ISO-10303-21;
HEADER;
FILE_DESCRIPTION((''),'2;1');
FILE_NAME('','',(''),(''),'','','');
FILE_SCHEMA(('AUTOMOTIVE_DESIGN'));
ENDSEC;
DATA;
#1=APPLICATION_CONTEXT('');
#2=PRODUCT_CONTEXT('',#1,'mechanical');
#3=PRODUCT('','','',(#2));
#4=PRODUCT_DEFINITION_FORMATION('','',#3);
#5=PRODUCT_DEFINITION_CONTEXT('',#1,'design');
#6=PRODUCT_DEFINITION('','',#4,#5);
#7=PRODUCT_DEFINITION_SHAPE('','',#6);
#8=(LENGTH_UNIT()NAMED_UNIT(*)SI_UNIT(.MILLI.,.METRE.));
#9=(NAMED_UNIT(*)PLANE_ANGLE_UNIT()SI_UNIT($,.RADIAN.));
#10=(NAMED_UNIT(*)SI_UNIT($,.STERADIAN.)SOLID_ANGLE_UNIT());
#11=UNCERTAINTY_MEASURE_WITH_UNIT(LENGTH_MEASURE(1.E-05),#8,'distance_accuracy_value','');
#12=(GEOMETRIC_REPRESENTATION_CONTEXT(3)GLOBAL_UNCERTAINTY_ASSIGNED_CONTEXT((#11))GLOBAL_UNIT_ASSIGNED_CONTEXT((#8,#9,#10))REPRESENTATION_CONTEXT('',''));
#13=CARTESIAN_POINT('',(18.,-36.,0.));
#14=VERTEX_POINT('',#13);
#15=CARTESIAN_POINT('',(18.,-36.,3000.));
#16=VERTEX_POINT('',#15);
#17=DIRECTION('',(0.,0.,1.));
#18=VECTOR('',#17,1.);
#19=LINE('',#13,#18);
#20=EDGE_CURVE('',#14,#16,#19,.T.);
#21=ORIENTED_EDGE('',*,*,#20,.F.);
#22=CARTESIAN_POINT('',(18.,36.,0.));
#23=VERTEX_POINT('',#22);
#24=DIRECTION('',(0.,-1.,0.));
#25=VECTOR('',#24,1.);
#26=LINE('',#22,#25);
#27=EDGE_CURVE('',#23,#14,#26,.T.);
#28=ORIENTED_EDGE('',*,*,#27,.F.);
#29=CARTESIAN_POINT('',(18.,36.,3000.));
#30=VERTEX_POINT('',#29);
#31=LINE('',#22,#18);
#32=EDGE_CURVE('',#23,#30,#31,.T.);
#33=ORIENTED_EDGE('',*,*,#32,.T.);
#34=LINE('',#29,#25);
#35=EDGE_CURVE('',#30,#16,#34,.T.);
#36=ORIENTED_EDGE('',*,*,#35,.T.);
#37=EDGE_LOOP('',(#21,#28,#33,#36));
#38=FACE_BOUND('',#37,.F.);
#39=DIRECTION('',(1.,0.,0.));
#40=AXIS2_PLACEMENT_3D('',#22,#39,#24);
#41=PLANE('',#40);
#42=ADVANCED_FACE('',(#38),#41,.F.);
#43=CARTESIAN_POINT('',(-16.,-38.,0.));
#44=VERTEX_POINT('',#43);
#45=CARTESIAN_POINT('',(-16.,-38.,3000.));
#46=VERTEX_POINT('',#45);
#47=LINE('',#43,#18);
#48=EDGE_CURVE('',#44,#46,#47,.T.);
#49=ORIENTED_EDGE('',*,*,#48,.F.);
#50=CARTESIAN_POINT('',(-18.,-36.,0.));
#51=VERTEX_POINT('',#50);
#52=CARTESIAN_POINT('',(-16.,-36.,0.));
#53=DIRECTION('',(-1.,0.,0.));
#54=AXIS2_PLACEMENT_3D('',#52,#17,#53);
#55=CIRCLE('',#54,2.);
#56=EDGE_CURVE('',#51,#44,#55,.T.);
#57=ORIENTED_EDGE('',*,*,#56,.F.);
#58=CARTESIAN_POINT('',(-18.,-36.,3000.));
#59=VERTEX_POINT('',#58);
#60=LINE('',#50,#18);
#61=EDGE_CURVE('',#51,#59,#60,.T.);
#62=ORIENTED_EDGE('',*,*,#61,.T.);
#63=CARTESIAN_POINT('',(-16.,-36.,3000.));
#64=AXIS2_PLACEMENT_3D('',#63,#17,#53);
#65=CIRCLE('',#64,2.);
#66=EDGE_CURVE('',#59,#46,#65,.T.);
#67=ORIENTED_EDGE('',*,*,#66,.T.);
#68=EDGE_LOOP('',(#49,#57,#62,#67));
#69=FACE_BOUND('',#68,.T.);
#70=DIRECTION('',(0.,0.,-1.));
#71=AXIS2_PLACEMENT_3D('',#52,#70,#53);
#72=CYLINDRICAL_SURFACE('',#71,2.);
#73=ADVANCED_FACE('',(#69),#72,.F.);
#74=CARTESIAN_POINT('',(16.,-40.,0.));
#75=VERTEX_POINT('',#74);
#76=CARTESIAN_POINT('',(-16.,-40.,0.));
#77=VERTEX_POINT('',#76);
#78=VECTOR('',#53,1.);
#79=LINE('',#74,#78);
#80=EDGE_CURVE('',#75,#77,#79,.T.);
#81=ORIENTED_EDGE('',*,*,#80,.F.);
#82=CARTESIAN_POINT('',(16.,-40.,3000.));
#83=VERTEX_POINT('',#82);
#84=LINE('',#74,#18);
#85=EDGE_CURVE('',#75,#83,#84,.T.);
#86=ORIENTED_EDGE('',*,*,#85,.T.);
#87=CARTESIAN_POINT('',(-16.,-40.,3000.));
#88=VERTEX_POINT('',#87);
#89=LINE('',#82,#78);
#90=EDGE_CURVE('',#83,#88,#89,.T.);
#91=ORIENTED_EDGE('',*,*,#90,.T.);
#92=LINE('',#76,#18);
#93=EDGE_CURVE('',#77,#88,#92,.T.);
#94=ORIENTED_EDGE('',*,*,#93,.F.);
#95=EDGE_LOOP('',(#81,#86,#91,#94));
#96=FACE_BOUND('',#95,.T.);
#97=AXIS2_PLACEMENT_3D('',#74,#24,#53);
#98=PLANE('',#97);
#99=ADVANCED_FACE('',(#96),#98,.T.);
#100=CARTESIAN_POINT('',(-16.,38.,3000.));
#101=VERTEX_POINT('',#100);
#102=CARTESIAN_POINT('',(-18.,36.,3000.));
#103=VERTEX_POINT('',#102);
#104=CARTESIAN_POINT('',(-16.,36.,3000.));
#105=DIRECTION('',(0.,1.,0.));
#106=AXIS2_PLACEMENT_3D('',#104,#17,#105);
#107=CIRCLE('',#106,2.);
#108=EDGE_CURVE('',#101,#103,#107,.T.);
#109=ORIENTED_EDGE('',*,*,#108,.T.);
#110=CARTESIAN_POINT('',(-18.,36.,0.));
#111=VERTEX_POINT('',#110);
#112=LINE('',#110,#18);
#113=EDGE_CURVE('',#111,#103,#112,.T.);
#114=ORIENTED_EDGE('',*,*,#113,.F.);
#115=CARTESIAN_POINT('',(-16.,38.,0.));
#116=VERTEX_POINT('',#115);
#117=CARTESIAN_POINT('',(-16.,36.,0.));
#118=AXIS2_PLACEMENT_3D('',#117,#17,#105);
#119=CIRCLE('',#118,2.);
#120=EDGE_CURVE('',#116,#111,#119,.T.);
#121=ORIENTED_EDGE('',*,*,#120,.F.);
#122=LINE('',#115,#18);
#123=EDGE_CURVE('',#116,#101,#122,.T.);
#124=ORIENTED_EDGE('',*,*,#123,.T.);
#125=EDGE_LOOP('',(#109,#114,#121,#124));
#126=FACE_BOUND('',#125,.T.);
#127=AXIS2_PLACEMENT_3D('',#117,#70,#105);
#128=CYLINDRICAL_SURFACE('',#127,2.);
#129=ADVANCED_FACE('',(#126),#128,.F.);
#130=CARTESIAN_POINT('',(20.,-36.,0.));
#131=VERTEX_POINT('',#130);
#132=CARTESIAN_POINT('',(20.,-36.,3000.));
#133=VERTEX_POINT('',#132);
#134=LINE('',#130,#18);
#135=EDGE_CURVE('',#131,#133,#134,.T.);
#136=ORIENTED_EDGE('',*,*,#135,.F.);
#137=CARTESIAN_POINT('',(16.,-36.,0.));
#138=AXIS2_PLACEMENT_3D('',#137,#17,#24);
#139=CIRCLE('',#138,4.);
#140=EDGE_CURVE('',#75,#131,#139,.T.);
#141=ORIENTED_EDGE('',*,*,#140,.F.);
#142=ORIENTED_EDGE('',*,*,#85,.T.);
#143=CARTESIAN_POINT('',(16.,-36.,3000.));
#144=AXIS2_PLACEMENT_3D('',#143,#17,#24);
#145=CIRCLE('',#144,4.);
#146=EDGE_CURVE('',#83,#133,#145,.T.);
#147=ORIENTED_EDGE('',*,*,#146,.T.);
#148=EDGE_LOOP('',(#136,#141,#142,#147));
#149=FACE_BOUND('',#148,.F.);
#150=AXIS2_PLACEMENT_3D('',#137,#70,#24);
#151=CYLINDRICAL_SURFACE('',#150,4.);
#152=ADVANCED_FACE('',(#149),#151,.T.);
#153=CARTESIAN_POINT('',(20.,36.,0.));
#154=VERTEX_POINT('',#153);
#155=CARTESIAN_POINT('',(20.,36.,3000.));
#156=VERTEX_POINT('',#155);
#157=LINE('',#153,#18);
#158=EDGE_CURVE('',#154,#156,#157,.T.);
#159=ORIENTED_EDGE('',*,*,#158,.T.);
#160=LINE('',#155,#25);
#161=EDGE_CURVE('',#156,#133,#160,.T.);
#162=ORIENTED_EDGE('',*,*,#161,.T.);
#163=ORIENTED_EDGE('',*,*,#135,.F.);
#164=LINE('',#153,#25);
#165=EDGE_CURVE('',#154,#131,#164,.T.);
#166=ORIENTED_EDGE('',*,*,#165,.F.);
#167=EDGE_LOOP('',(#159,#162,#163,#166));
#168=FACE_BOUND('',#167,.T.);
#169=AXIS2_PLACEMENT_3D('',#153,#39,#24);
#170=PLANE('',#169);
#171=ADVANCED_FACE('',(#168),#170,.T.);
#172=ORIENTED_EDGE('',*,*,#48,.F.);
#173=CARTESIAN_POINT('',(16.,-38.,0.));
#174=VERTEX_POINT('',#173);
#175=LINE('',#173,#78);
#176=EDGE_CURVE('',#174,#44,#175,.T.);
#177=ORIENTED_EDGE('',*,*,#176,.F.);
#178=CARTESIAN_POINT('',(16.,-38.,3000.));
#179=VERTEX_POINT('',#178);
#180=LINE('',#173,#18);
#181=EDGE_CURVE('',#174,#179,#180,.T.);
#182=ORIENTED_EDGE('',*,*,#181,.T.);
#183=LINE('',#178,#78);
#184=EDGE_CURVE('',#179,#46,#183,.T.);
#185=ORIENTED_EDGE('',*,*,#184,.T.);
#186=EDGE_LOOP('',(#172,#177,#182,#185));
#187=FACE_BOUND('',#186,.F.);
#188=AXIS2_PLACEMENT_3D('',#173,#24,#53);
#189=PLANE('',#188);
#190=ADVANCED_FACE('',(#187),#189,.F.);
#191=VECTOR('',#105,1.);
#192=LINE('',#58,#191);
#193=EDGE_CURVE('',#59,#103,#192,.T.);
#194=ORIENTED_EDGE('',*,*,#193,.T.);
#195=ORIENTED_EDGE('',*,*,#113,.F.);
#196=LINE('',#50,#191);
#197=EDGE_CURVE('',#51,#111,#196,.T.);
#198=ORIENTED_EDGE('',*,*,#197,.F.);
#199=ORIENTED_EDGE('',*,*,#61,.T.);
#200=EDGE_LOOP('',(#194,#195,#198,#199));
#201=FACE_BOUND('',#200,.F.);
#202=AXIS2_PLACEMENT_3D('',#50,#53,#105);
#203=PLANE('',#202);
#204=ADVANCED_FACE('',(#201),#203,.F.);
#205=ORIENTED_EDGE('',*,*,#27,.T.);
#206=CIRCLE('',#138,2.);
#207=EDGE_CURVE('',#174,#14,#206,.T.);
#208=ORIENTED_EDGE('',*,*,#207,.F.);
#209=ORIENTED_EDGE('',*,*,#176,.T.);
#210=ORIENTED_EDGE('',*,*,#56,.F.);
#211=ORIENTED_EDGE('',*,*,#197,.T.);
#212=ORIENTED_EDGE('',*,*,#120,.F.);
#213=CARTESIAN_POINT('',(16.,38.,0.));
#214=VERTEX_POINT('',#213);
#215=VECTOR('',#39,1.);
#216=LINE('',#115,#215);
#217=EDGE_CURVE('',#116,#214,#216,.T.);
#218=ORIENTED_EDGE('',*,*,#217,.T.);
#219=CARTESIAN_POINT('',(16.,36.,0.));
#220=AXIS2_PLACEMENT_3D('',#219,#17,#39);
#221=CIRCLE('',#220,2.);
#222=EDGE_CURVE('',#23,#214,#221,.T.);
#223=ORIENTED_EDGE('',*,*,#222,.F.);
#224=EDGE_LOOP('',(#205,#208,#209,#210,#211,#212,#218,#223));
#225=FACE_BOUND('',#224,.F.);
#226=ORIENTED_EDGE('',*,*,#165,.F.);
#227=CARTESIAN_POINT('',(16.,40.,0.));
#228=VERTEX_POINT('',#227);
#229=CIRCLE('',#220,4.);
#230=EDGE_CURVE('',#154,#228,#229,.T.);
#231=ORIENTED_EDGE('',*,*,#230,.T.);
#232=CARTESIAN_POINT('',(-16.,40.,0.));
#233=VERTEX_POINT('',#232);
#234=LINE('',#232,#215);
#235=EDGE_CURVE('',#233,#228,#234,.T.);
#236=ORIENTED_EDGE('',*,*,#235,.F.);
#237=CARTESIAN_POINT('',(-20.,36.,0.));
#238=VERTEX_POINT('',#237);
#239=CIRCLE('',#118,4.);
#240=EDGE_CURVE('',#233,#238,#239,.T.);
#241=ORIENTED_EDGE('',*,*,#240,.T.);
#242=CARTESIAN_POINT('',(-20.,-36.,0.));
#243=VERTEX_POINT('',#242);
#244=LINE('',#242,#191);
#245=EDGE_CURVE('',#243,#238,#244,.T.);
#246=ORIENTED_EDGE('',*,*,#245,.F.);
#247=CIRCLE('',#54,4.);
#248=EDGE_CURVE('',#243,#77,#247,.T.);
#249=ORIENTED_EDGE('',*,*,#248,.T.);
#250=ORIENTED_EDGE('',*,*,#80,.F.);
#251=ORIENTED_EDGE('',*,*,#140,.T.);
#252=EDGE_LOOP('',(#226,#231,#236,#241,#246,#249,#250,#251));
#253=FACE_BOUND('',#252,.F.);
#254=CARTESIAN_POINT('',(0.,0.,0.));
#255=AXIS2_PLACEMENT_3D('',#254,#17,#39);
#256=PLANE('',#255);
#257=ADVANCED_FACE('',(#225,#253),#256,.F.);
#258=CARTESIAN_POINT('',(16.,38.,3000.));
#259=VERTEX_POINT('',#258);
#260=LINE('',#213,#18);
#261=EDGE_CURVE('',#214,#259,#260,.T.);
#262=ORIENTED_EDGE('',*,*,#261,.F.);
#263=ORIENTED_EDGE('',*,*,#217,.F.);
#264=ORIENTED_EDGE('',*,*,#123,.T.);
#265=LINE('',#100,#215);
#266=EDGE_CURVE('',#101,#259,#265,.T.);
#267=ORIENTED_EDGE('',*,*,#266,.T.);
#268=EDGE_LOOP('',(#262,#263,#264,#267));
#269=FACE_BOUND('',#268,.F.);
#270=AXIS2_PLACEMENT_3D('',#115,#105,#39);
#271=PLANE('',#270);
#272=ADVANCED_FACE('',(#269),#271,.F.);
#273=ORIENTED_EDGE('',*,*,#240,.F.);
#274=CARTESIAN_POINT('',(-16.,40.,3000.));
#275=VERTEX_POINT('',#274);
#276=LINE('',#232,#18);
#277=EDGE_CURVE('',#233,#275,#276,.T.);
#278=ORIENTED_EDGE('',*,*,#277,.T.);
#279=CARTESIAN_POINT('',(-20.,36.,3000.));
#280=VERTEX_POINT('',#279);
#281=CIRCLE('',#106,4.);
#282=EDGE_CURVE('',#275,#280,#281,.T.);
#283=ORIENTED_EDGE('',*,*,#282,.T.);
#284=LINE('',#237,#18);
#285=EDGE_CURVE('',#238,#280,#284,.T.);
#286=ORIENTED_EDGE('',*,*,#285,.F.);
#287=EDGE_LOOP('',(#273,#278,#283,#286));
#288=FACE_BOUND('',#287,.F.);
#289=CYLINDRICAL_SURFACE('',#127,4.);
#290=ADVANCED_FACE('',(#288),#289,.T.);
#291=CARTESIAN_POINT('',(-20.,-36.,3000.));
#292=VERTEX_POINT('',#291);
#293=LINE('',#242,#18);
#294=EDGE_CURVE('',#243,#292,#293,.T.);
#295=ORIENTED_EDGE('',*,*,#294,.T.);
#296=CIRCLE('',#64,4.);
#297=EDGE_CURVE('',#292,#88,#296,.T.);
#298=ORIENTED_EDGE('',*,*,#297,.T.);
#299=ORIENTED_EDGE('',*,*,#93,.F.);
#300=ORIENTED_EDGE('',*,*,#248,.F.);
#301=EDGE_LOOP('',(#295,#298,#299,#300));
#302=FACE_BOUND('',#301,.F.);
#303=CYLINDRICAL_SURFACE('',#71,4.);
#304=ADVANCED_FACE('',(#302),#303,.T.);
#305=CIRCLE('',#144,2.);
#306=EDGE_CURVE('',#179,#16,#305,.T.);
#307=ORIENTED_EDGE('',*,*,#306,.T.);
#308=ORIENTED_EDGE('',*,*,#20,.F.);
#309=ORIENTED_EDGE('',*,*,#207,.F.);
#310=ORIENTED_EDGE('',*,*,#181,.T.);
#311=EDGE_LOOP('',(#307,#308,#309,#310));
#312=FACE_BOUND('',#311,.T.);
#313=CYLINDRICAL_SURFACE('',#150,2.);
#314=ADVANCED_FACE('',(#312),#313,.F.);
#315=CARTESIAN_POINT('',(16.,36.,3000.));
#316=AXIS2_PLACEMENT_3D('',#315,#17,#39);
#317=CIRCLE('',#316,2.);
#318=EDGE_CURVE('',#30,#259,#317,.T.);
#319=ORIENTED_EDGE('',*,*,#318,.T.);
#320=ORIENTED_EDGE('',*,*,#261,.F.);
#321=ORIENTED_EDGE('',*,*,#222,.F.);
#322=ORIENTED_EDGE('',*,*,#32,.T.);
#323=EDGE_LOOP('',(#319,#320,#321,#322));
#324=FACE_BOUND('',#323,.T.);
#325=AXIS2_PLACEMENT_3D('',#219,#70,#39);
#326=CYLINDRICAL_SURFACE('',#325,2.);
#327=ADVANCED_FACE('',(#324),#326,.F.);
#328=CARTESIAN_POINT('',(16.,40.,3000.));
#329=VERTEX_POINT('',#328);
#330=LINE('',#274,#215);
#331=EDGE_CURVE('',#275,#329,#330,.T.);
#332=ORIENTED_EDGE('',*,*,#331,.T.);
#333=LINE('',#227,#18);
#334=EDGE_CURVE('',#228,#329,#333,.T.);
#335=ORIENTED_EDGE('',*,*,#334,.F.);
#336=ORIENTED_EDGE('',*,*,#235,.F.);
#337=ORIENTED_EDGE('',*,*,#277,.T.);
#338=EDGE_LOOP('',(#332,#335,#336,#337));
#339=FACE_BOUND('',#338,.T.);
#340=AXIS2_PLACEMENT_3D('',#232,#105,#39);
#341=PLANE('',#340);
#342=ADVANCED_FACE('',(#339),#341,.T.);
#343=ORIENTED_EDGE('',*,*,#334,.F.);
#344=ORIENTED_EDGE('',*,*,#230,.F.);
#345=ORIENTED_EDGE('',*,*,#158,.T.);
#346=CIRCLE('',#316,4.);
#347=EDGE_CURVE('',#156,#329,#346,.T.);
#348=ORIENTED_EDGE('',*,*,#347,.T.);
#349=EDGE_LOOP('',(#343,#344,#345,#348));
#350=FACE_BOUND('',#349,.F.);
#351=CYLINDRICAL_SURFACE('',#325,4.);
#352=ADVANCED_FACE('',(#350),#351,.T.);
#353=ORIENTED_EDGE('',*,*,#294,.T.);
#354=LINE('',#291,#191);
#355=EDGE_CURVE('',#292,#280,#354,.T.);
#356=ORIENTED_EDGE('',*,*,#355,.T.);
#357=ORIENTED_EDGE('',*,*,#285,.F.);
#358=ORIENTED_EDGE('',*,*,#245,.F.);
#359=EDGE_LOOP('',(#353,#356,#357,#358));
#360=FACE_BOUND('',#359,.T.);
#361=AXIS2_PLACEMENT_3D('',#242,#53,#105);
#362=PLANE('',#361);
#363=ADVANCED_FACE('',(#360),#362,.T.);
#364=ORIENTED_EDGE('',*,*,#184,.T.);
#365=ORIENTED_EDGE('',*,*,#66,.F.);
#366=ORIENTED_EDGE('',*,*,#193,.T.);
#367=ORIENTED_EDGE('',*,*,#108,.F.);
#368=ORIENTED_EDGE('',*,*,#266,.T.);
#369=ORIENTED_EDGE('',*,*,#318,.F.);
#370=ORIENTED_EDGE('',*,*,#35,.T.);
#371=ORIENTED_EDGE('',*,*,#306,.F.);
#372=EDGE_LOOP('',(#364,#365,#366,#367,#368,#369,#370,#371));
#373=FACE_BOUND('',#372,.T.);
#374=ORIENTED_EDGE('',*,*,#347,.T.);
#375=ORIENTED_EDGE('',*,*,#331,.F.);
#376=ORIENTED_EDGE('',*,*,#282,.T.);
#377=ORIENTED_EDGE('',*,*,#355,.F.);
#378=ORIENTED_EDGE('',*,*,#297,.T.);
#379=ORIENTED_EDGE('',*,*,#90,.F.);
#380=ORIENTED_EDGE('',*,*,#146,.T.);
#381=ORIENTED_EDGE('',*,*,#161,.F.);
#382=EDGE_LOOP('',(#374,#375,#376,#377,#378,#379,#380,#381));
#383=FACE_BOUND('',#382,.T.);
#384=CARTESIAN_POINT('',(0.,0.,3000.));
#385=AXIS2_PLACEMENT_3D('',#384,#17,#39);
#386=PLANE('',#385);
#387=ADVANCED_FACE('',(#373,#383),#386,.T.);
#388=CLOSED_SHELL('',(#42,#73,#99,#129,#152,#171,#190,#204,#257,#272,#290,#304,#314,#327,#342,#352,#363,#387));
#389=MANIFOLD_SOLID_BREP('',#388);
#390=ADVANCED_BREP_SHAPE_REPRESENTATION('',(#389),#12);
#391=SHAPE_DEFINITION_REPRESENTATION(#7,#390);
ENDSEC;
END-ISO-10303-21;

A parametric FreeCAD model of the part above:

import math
import FreeCAD as App
import Part
import Sketcher
from FreeCAD import Vector
Q = App.Units.Quantity

doc = App.newDocument("Part")
params = doc.addObject("Spreadsheet::Sheet", "Params")
for row, (alias, value) in enumerate([
    ("sketch1_radius", "4 mm"),
    ("sketch1_radius2", "2 mm"),
    ("pad1_length", "3000 mm"),
], start=1):
    params.set(f"A{row}", alias)
    params.set(f"B{row}", "=" + value)
    params.setAlias(f"B{row}", alias)

body = doc.addObject("PartDesign::Body", "Body")

sketch1 = body.newObject("Sketcher::SketchObject", "Sketch")
sketch1.AttachmentSupport = (doc.getObject("XY_Plane"), [""])
sketch1.MapMode = "FlatFace"
sketch1.addGeometry([
    Part.LineSegment(Vector(-20, 36, 0), Vector(-20, -36, 0)),
    Part.ArcOfCircle(Part.Circle(Vector(-16, -36, 0), Vector(0, 0, 1), 4), math.radians(180), math.radians(270)),
    Part.LineSegment(Vector(-16, -40, 0), Vector(16, -40, 0)),
    Part.ArcOfCircle(Part.Circle(Vector(16, -36, 0), Vector(0, 0, 1), 4), math.radians(-90), math.radians(0)),
    Part.LineSegment(Vector(20, -36, 0), Vector(20, 36, 0)),
    Part.ArcOfCircle(Part.Circle(Vector(16, 36, 0), Vector(0, 0, 1), 4), math.radians(0), math.radians(90)),
    Part.LineSegment(Vector(16, 40, 0), Vector(-16, 40, 0)),
    Part.ArcOfCircle(Part.Circle(Vector(-16, 36, 0), Vector(0, 0, 1), 4), math.radians(90), math.radians(180)),
    Part.ArcOfCircle(Part.Circle(Vector(-16, 36, 0), Vector(0, 0, 1), 2), math.radians(90), math.radians(180)),
    Part.LineSegment(Vector(-16, 38, 0), Vector(16, 38, 0)),
    Part.ArcOfCircle(Part.Circle(Vector(16, 36, 0), Vector(0, 0, 1), 2), math.radians(0), math.radians(90)),
    Part.LineSegment(Vector(18, 36, 0), Vector(18, -36, 0)),
    Part.ArcOfCircle(Part.Circle(Vector(16, -36, 0), Vector(0, 0, 1), 2), math.radians(-90), math.radians(0)),
    Part.LineSegment(Vector(16, -38, 0), Vector(-16, -38, 0)),
    Part.ArcOfCircle(Part.Circle(Vector(-16, -36, 0), Vector(0, 0, 1), 2), math.radians(180), math.radians(270)),
    Part.LineSegment(Vector(-18, -36, 0), Vector(-18, 36, 0)),
], False)
sketch1.addConstraint([
    Sketcher.Constraint("Tangent", 0, 2, 1, 1),
    Sketcher.Constraint("Tangent", 1, 2, 2, 1),
    Sketcher.Constraint("Tangent", 2, 2, 3, 1),
    Sketcher.Constraint("Tangent", 3, 2, 4, 1),
    Sketcher.Constraint("Tangent", 4, 2, 5, 1),
    Sketcher.Constraint("Tangent", 5, 2, 6, 1),
    Sketcher.Constraint("Tangent", 6, 2, 7, 1),
    Sketcher.Constraint("Tangent", 7, 2, 0, 1),
    Sketcher.Constraint("Tangent", 8, 1, 9, 1),
    Sketcher.Constraint("Tangent", 9, 2, 10, 2),
    Sketcher.Constraint("Tangent", 10, 1, 11, 1),
    Sketcher.Constraint("Tangent", 11, 2, 12, 2),
    Sketcher.Constraint("Tangent", 12, 1, 13, 1),
    Sketcher.Constraint("Tangent", 13, 2, 14, 2),
    Sketcher.Constraint("Tangent", 14, 1, 15, 1),
    Sketcher.Constraint("Tangent", 15, 2, 8, 2),
    Sketcher.Constraint("Vertical", 0),
    Sketcher.Constraint("Horizontal", 2),
    Sketcher.Constraint("Vertical", 4),
    Sketcher.Constraint("Horizontal", 6),
    Sketcher.Constraint("Horizontal", 9),
    Sketcher.Constraint("Vertical", 11),
    Sketcher.Constraint("Horizontal", 13),
    Sketcher.Constraint("Vertical", 15),
    Sketcher.Constraint("Coincident", 8, 3, 7, 3),
    Sketcher.Constraint("Coincident", 10, 3, 5, 3),
    Sketcher.Constraint("Coincident", 12, 3, 3, 3),
    Sketcher.Constraint("Equal", 1, 3),
    Sketcher.Constraint("Equal", 3, 5),
    Sketcher.Constraint("Equal", 5, 7),
    Sketcher.Constraint("Equal", 12, 14),
    Sketcher.Constraint("Symmetric", 1, 3, 5, 3, -1, 1),
    Sketcher.Constraint("Radius", 1, Q("4 mm")),
    Sketcher.Constraint("Radius", 8, Q("2 mm")),
    Sketcher.Constraint("DistanceX", 0, 2, -1, 1, Q("20 mm")),
    Sketcher.Constraint("DistanceY", 1, 2, -1, 1, Q("40 mm")),
])
sketch1.setExpression("Constraints[32]", "Params.sketch1_radius")
sketch1.setExpression("Constraints[33]", "Params.sketch1_radius2")
pad1 = body.newObject("PartDesign::Pad", "Pad")
pad1.Profile = sketch1
pad1.setExpression("Length", "Params.pad1_length")

doc.recompute()
